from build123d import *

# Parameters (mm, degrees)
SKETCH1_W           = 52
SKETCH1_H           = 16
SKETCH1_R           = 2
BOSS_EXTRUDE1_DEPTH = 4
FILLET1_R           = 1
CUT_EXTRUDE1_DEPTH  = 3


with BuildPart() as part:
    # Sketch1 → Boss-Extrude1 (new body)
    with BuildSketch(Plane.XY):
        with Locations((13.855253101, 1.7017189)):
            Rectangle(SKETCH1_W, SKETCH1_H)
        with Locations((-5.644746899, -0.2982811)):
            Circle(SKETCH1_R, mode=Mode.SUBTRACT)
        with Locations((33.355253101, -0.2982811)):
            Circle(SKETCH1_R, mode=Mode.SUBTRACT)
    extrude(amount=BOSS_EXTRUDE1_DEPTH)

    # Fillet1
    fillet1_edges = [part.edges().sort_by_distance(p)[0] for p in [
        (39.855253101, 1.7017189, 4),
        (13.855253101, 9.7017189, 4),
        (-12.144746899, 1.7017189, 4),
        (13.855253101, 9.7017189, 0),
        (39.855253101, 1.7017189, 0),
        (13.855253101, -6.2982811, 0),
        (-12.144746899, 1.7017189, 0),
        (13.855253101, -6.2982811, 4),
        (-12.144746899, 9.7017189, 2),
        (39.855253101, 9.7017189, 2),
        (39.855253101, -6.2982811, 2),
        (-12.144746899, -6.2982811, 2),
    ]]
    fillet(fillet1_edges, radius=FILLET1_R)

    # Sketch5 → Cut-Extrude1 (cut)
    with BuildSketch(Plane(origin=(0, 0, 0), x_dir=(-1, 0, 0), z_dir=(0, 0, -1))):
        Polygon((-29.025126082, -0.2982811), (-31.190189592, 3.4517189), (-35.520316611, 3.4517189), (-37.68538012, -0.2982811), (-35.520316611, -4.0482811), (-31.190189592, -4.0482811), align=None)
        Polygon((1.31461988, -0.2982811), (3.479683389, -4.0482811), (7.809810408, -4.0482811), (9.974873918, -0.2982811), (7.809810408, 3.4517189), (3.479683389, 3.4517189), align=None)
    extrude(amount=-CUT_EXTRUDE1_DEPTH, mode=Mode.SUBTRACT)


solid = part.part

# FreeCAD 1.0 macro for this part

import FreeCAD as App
import Part
import Sketcher
Q = App.Units.Quantity


def edges_at(feature, points):
    """Names of the edges that pass closest to the given points."""
    edges = feature.Shape.Edges
    near = lambda p: min(range(len(edges)), key=lambda i: edges[i].distToShape(Part.Vertex(*p))[0])
    return sorted({f"Edge{near(p) + 1}" for p in points})

doc = App.newDocument("Part")
body = doc.addObject("PartDesign::Body", "Body")

# Sketch on XY plane
sketch1 = doc.addObject("Sketcher::SketchObject", "Sketch")
body.addObject(sketch1)
sketch1.AttachmentSupport = (doc.XY_Plane, [""])
sketch1.MapMode = "FlatFace"
sketch1.addGeometry([
    Part.LineSegment(App.Vector(-12.1, 9.7, 0), App.Vector(-12.1, -6.3, 0)),  # 0
    Part.LineSegment(App.Vector(-12.1, -6.3, 0), App.Vector(39.9, -6.3, 0)),  # 1
    Part.LineSegment(App.Vector(39.9, -6.3, 0), App.Vector(39.9, 9.7, 0)),  # 2
    Part.LineSegment(App.Vector(39.9, 9.7, 0), App.Vector(-12.1, 9.7, 0)),  # 3
    Part.Circle(App.Vector(-5.6, -0.3, 0), App.Vector(0, 0, 1), 2),  # 4
    Part.Circle(App.Vector(33.4, -0.3, 0), App.Vector(0, 0, 1), 2),  # 5
], False)
sketch1.addConstraint([
    Sketcher.Constraint("Coincident", 0, 2, 1, 1),
    Sketcher.Constraint("Coincident", 1, 2, 2, 1),
    Sketcher.Constraint("Coincident", 2, 2, 3, 1),
    Sketcher.Constraint("Coincident", 3, 2, 0, 1),
    Sketcher.Constraint("Vertical", 0),
    Sketcher.Constraint("Horizontal", 1),
    Sketcher.Constraint("Vertical", 2),
    Sketcher.Constraint("Horizontal", 3),
    Sketcher.Constraint("Equal", 4, 5),
    Sketcher.Constraint("Horizontal", 4, 3, 5, 3),
    Sketcher.Constraint("Diameter", 4, 4.0),
    Sketcher.Constraint("DistanceX", 1, 1, 1, 2, 52.0),
    Sketcher.Constraint("DistanceY", 0, 2, 0, 1, 16.0),
    Sketcher.Constraint("DistanceX", 4, 3, 5, 3, 39.0),
    Sketcher.Constraint("DistanceY", 0, 2, 4, 3, 6.0),
    Sketcher.Constraint("DistanceX", 0, 2, 4, 3, 6.5),
    Sketcher.Constraint("DistanceY", 4, 3, -1, 1, 0.298281),
    Sketcher.Constraint("DistanceX", 4, 3, -1, 1, 5.644747),
])
pad1 = doc.addObject("PartDesign::Pad", "Pad")
body.addObject(pad1)
pad1.Profile = sketch1
pad1.Length = 4
doc.recompute()

fillet = doc.addObject("PartDesign::Fillet", "Fillet")
body.addObject(fillet)
fillet.Base = (pad1, edges_at(pad1, [
    (39.855, 1.702, 4),
    (13.855, 9.702, 4),
    (-12.145, 1.702, 4),
    (13.855, 9.702, 0),
    (39.855, 1.702, 0),
    (13.855, -6.298, 0),
    (-12.145, 1.702, 0),
    (13.855, -6.298, 4),
    (-12.145, 9.702, 2),
    (39.855, 9.702, 2),
    (39.855, -6.298, 2),
    (-12.145, -6.298, 2),
]))
fillet.Radius = 1

# Sketch on XY plane
sketch2 = doc.addObject("Sketcher::SketchObject", "Sketch001")
body.addObject(sketch2)
sketch2.AttachmentSupport = (doc.XY_Plane, [""])
sketch2.MapMode = "FlatFace"
sketch2.addGeometry([
    Part.LineSegment(App.Vector(29, -0.3, 0), App.Vector(31.2, 3.5, 0)),  # 0
    Part.LineSegment(App.Vector(31.2, 3.5, 0), App.Vector(35.5, 3.5, 0)),  # 1
    Part.LineSegment(App.Vector(35.5, 3.5, 0), App.Vector(37.7, -0.3, 0)),  # 2
    Part.LineSegment(App.Vector(37.7, -0.3, 0), App.Vector(35.5, -4, 0)),  # 3
    Part.LineSegment(App.Vector(35.5, -4, 0), App.Vector(31.2, -4, 0)),  # 4
    Part.LineSegment(App.Vector(31.2, -4, 0), App.Vector(29, -0.3, 0)),  # 5
    Part.LineSegment(App.Vector(-1.3, -0.3, 0), App.Vector(-3.5, -4, 0)),  # 6
    Part.LineSegment(App.Vector(-3.5, -4, 0), App.Vector(-7.8, -4, 0)),  # 7
    Part.LineSegment(App.Vector(-7.8, -4, 0), App.Vector(-10, -0.3, 0)),  # 8
    Part.LineSegment(App.Vector(-10, -0.3, 0), App.Vector(-7.8, 3.5, 0)),  # 9
    Part.LineSegment(App.Vector(-7.8, 3.5, 0), App.Vector(-3.5, 3.5, 0)),  # 10
    Part.LineSegment(App.Vector(-3.5, 3.5, 0), App.Vector(-1.3, -0.3, 0)),  # 11
], False)
sketch2.addConstraint([
    Sketcher.Constraint("Coincident", 0, 2, 1, 1),
    Sketcher.Constraint("Coincident", 1, 2, 2, 1),
    Sketcher.Constraint("Coincident", 2, 2, 3, 1),
    Sketcher.Constraint("Coincident", 3, 2, 4, 1),
    Sketcher.Constraint("Coincident", 4, 2, 5, 1),
    Sketcher.Constraint("Coincident", 5, 2, 0, 1),
    Sketcher.Constraint("Coincident", 6, 2, 7, 1),
    Sketcher.Constraint("Coincident", 7, 2, 8, 1),
    Sketcher.Constraint("Coincident", 8, 2, 9, 1),
    Sketcher.Constraint("Coincident", 9, 2, 10, 1),
    Sketcher.Constraint("Coincident", 10, 2, 11, 1),
    Sketcher.Constraint("Coincident", 11, 2, 6, 1),
    Sketcher.Constraint("Horizontal", 1),
    Sketcher.Constraint("Horizontal", 4),
    Sketcher.Constraint("Horizontal", 7),
    Sketcher.Constraint("Horizontal", 10),
    Sketcher.Constraint("Parallel", 0, 3),
    Sketcher.Constraint("Parallel", 2, 5),
    Sketcher.Constraint("Parallel", 3, 6),
    Sketcher.Constraint("Parallel", 5, 8),
    Sketcher.Constraint("Parallel", 6, 9),
    Sketcher.Constraint("Parallel", 8, 11),
    Sketcher.Constraint("Horizontal", 2, 2, 5, 2),
    Sketcher.Constraint("Horizontal", 4, 2, 6, 2),
    Sketcher.Constraint("Horizontal", 5, 2, 8, 2),
    Sketcher.Constraint("Horizontal", 1, 2, 9, 2),
    Sketcher.Constraint("Horizontal", 8, 2, 11, 2),
    Sketcher.Constraint("Vertical", 1, 2, 3, 2),
    Sketcher.Constraint("Vertical", 0, 2, 4, 2),
    Sketcher.Constraint("Equal", 4, 7),
    Sketcher.Constraint("Angle", 0, Q("60 deg")),
    Sketcher.Constraint("DistanceX", 6, 2, 3, 2, 39.0),
    Sketcher.Constraint("DistanceY", 3, 2, 1, 2, 7.5),
    Sketcher.Constraint("DistanceX", 1, 1, 1, 2, 4.330127),
    Sketcher.Constraint("DistanceX", -1, 1, 0, 2, 31.19019),
    Sketcher.Constraint("DistanceY", -1, 1, 0, 2, 3.451719),
])
pocket1 = doc.addObject("PartDesign::Pocket", "Pocket")
body.addObject(pocket1)
pocket1.Profile = sketch2
pocket1.Length = 3
pocket1.Reversed = True

doc.recompute()
